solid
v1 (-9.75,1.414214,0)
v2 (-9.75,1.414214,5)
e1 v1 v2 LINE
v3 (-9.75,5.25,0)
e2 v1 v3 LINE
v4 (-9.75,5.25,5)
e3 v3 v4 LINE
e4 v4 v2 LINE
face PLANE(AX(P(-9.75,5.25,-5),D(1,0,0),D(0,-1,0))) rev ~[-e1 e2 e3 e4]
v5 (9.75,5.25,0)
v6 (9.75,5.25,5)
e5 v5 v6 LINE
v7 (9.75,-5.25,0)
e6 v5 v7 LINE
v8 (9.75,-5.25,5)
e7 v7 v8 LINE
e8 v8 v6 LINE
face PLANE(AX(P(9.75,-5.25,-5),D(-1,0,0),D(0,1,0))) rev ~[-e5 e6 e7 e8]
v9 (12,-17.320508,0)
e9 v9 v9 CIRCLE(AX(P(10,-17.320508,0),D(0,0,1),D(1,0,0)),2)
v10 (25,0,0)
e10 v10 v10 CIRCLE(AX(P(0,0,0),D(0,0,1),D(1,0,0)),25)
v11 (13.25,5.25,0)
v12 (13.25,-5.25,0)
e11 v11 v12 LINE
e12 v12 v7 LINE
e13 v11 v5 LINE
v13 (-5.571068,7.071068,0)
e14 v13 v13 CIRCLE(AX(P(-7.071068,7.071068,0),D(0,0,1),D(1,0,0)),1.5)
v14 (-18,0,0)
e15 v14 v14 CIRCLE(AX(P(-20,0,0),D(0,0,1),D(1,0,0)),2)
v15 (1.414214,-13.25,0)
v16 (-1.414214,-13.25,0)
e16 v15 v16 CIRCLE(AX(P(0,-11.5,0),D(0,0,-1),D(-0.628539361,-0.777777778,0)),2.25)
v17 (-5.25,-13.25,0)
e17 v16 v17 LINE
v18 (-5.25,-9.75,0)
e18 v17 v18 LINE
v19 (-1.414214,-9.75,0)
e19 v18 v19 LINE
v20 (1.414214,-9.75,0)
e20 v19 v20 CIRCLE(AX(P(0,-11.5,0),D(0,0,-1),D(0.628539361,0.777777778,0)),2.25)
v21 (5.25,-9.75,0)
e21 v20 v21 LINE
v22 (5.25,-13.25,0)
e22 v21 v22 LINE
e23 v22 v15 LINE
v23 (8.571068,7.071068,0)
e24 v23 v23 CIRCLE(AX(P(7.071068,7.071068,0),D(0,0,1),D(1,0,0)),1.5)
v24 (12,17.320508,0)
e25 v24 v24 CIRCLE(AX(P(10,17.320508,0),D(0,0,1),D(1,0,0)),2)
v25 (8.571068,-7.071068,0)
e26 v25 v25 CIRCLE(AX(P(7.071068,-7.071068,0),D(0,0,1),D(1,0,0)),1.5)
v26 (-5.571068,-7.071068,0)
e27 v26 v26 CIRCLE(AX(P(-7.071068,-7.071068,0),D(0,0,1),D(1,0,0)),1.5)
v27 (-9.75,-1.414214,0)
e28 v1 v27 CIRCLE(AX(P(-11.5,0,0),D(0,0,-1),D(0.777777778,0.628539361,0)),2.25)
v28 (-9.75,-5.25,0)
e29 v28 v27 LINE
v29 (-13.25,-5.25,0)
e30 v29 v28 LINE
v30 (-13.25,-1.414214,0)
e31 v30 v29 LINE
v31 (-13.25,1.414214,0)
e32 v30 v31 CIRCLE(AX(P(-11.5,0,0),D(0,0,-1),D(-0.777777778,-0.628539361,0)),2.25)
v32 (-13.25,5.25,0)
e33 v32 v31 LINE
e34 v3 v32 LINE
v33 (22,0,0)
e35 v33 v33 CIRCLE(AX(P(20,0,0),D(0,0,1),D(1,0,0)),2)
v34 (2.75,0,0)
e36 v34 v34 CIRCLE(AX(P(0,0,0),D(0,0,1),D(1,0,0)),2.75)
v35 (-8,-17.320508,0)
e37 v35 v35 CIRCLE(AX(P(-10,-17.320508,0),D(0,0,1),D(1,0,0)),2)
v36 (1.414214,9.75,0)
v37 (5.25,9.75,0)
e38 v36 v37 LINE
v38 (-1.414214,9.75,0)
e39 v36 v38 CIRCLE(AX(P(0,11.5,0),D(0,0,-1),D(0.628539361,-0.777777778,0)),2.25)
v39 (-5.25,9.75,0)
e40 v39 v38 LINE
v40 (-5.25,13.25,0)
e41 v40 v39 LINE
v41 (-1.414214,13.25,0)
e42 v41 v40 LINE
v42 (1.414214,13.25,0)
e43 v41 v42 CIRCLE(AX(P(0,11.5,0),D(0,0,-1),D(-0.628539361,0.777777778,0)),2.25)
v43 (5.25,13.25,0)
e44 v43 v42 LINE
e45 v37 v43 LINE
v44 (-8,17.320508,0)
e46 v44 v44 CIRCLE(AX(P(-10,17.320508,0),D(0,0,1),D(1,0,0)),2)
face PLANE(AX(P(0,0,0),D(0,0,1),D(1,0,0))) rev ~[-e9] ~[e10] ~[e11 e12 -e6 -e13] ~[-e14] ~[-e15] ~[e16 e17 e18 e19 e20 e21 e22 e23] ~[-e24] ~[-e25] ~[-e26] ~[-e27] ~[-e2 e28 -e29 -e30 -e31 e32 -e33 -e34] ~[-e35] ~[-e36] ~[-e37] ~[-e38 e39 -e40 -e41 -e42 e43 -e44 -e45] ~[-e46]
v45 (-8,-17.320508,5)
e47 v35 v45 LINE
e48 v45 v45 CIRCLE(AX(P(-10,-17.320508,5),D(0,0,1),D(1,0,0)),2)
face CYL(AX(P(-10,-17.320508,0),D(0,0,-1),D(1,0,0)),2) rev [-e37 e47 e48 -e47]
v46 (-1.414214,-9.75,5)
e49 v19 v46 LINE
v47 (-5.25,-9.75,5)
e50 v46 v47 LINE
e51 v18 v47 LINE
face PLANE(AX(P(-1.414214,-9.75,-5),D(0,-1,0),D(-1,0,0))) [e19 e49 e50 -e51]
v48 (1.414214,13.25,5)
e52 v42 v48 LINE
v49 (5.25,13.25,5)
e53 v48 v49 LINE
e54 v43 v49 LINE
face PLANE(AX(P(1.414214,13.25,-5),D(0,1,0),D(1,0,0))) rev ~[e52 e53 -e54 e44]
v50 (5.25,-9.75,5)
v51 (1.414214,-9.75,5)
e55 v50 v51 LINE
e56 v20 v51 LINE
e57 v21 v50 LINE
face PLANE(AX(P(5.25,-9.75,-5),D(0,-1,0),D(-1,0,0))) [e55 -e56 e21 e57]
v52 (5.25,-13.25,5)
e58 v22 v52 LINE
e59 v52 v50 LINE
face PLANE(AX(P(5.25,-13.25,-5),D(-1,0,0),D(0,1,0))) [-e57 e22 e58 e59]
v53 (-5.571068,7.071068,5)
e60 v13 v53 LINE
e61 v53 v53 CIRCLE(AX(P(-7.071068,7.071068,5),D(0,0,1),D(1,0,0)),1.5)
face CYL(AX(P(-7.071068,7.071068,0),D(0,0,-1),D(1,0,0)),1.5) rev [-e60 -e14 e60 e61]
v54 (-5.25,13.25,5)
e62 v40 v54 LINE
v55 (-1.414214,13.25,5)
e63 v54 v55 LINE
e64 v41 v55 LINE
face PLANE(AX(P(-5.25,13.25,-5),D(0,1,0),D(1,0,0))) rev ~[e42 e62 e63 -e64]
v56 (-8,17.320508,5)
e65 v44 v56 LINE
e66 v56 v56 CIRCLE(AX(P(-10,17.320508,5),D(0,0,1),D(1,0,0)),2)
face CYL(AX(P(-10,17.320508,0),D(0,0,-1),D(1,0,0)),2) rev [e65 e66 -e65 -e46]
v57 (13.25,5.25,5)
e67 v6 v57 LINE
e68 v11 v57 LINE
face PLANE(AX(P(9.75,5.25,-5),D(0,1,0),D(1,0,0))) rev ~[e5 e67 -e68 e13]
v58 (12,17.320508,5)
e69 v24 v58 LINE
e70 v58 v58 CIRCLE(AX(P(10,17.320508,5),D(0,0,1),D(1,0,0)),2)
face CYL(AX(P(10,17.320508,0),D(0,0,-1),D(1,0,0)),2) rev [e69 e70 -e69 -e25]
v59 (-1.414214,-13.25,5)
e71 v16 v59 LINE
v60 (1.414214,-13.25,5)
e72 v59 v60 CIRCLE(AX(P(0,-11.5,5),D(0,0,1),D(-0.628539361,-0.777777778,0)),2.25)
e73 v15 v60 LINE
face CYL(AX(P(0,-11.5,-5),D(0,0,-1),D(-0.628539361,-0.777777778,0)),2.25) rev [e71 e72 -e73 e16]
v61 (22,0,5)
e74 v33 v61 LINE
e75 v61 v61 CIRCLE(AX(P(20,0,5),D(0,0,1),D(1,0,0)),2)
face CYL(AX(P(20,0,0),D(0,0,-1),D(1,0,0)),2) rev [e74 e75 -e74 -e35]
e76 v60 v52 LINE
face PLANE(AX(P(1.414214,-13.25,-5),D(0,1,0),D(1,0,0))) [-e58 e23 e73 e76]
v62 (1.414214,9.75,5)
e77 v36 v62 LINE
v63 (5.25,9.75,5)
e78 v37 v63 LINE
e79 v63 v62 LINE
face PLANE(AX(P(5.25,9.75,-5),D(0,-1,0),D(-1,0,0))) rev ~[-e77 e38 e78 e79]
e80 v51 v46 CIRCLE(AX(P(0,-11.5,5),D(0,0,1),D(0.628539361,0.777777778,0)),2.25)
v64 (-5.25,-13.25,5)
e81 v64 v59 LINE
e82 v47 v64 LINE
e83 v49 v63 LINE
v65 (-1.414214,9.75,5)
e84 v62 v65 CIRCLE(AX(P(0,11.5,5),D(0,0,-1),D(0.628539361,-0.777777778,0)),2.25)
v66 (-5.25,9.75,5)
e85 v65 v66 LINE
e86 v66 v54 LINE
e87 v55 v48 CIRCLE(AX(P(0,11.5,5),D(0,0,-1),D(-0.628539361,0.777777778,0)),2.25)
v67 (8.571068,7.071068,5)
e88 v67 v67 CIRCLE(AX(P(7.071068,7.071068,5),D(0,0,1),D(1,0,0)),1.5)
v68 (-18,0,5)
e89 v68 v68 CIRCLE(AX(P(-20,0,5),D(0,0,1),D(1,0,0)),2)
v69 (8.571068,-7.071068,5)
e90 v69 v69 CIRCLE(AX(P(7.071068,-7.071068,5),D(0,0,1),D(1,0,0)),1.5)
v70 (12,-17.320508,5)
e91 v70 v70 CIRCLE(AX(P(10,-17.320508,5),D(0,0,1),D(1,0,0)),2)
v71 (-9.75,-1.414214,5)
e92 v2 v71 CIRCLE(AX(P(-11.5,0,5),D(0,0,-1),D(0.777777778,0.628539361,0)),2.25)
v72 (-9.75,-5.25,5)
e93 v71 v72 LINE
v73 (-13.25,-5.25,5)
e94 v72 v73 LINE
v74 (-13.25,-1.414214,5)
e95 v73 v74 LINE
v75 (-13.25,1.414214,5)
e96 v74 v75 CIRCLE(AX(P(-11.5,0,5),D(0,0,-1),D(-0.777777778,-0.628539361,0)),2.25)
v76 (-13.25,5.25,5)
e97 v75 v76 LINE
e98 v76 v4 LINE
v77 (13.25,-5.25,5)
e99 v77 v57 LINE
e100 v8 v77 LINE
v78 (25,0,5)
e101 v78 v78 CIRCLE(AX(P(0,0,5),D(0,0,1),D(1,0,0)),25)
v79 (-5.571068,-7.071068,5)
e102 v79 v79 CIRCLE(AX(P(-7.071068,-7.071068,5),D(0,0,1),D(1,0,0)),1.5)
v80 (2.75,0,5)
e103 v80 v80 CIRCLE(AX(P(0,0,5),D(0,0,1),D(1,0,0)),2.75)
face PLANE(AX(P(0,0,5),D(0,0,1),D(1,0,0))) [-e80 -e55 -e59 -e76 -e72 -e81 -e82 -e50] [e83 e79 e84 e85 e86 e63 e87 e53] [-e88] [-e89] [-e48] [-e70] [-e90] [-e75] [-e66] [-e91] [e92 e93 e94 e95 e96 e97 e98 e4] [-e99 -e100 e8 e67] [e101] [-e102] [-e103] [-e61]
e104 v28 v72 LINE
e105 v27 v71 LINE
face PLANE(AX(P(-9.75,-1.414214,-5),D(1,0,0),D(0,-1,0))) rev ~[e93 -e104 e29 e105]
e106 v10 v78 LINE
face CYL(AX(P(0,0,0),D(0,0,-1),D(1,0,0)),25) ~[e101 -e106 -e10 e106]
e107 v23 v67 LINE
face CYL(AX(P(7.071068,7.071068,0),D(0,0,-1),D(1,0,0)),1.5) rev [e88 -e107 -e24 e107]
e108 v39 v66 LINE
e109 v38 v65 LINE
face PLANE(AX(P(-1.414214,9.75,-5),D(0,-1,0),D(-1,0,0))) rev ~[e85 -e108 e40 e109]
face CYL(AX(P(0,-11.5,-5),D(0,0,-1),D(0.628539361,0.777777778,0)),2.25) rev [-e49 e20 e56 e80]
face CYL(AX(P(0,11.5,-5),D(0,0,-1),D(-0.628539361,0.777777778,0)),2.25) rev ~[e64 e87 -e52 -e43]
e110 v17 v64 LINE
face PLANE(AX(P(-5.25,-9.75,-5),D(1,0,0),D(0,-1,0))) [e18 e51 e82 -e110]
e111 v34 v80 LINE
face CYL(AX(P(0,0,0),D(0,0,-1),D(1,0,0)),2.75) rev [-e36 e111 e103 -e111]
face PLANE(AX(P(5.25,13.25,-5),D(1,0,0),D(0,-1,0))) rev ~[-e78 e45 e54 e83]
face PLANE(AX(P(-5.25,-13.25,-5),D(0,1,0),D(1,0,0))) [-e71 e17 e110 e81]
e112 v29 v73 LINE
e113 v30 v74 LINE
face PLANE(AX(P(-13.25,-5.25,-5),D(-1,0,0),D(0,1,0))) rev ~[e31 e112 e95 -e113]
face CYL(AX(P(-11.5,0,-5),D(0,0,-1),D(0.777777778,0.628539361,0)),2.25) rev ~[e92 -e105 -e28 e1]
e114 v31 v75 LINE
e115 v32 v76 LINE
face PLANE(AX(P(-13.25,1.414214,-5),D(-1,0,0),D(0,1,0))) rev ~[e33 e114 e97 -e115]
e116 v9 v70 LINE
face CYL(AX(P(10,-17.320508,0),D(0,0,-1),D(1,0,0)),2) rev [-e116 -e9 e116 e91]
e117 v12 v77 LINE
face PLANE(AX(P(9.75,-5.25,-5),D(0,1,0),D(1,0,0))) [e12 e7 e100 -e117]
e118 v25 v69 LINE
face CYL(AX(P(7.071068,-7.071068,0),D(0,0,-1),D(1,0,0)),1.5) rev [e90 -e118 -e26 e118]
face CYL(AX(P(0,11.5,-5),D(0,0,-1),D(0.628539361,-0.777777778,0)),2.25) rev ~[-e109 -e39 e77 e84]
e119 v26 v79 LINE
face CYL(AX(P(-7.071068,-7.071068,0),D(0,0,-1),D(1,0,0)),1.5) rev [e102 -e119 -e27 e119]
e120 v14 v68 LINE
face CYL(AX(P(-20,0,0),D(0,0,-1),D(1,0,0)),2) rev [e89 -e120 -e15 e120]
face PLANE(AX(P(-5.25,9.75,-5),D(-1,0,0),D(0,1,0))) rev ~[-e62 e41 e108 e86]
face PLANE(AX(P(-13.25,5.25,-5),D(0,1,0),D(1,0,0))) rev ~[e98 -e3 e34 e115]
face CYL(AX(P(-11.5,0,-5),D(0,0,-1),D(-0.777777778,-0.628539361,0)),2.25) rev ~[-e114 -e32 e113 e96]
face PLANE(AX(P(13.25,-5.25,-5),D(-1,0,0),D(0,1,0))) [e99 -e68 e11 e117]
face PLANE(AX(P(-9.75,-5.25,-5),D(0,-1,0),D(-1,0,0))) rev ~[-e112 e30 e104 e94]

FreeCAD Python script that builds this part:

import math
import FreeCAD as App
import Part
import Sketcher
from FreeCAD import Vector

doc = App.newDocument("Part")
body = doc.addObject("PartDesign::Body", "Body")

sketch1 = body.newObject("Sketcher::SketchObject", "Sketch")
sketch1.AttachmentSupport = (doc.getObject("XY_Plane"), [""])
sketch1.MapMode = "FlatFace"
sketch1.addGeometry(Part.Circle(Vector(0, 0, 0), Vector(0, 0, 1), 25), False)
sketch1.addGeometry(Part.Circle(Vector(-10, -17.320508, 0), Vector(0, 0, 1), 2), False)
sketch1.addGeometry(Part.ArcOfCircle(Part.Circle(Vector(-11.5, 0, 0), Vector(0, 0, 1), 2), math.radians(-41.409622), math.radians(41.409622)), False)
sketch1.addGeometry(Part.LineSegment(Vector(-10, -1.322876, 0), Vector(-10, -5, 0)), False)
sketch1.addGeometry(Part.LineSegment(Vector(-10, -5, 0), Vector(-13, -5, 0)), False)
sketch1.addGeometry(Part.LineSegment(Vector(-13, -5, 0), Vector(-13, -1.322876, 0)), False)
sketch1.addGeometry(Part.ArcOfCircle(Part.Circle(Vector(-11.5, 0, 0), Vector(0, 0, 1), 2), math.radians(138.590378), math.radians(221.409622)), False)
sketch1.addGeometry(Part.LineSegment(Vector(-13, 1.322876, 0), Vector(-13, 5, 0)), False)
sketch1.addGeometry(Part.LineSegment(Vector(-13, 5, 0), Vector(-10, 5, 0)), False)
sketch1.addGeometry(Part.LineSegment(Vector(-10, 5, 0), Vector(-10, 1.322876, 0)), False)
sketch1.addGeometry(Part.Circle(Vector(-7.071068, -7.071068, 0), Vector(0, 0, 1), 1.5), False)
sketch1.addGeometry(Part.Circle(Vector(10, -17.320508, 0), Vector(0, 0, 1), 2), False)
sketch1.addGeometry(Part.ArcOfCircle(Part.Circle(Vector(0, -11.5, 0), Vector(0, 0, 1), 2), math.radians(48.590378), math.radians(131.409622)), False)
sketch1.addGeometry(Part.LineSegment(Vector(1.322876, -10, 0), Vector(5, -10, 0)), False)
sketch1.addGeometry(Part.LineSegment(Vector(5, -10, 0), Vector(5, -13, 0)), False)
sketch1.addGeometry(Part.LineSegment(Vector(5, -13, 0), Vector(1.322876, -13, 0)), False)
sketch1.addGeometry(Part.ArcOfCircle(Part.Circle(Vector(0, -11.5, 0), Vector(0, 0, 1), 2), math.radians(-131.409622), math.radians(-48.590378)), False)
sketch1.addGeometry(Part.LineSegment(Vector(-1.322876, -13, 0), Vector(-5, -13, 0)), False)
sketch1.addGeometry(Part.LineSegment(Vector(-5, -13, 0), Vector(-5, -10, 0)), False)
sketch1.addGeometry(Part.LineSegment(Vector(-5, -10, 0), Vector(-1.322876, -10, 0)), False)
sketch1.addGeometry(Part.Circle(Vector(7.071068, -7.071068, 0), Vector(0, 0, 1), 1.5), False)
sketch1.addGeometry(Part.Circle(Vector(0, 0, 0), Vector(0, 0, 1), 2.75), False)
sketch1.addGeometry(Part.LineSegment(Vector(13, -5, 0), Vector(10, -5, 0)), False)
sketch1.addGeometry(Part.LineSegment(Vector(10, -5, 0), Vector(10, 5, 0)), False)
sketch1.addGeometry(Part.LineSegment(Vector(10, 5, 0), Vector(13, 5, 0)), False)
sketch1.addGeometry(Part.LineSegment(Vector(13, 5, 0), Vector(13, -5, 0)), False)
sketch1.addGeometry(Part.Circle(Vector(-20, 0, 0), Vector(0, 0, 1), 2), False)
sketch1.addGeometry(Part.Circle(Vector(-7.071068, 7.071068, 0), Vector(0, 0, 1), 1.5), False)
sketch1.addGeometry(Part.Circle(Vector(-10, 17.320508, 0), Vector(0, 0, 1), 2), False)
sketch1.addGeometry(Part.Circle(Vector(7.071068, 7.071068, 0), Vector(0, 0, 1), 1.5), False)
sketch1.addGeometry(Part.Circle(Vector(20, 0, 0), Vector(0, 0, 1), 2), False)
sketch1.addGeometry(Part.ArcOfCircle(Part.Circle(Vector(0, 11.5, 0), Vector(0, 0, 1), 2), math.radians(-131.409622), math.radians(-48.590378)), False)
sketch1.addGeometry(Part.LineSegment(Vector(-1.322876, 10, 0), Vector(-5, 10, 0)), False)
sketch1.addGeometry(Part.LineSegment(Vector(-5, 10, 0), Vector(-5, 13, 0)), False)
sketch1.addGeometry(Part.LineSegment(Vector(-5, 13, 0), Vector(-1.322876, 13, 0)), False)
sketch1.addGeometry(Part.ArcOfCircle(Part.Circle(Vector(0, 11.5, 0), Vector(0, 0, 1), 2), math.radians(48.590378), math.radians(131.409622)), False)
sketch1.addGeometry(Part.LineSegment(Vector(1.322876, 13, 0), Vector(5, 13, 0)), False)
sketch1.addGeometry(Part.LineSegment(Vector(5, 13, 0), Vector(5, 10, 0)), False)
sketch1.addGeometry(Part.LineSegment(Vector(5, 10, 0), Vector(1.322876, 10, 0)), False)
sketch1.addGeometry(Part.Circle(Vector(10, 17.320508, 0), Vector(0, 0, 1), 2), False)
sketch1.addConstraint(Sketcher.Constraint("Coincident", 2, 1, 3, 1))
sketch1.addConstraint(Sketcher.Constraint("Coincident", 3, 2, 4, 1))
sketch1.addConstraint(Sketcher.Constraint("Coincident", 4, 2, 5, 1))
sketch1.addConstraint(Sketcher.Constraint("Coincident", 5, 2, 6, 2))
sketch1.addConstraint(Sketcher.Constraint("Coincident", 6, 1, 7, 1))
sketch1.addConstraint(Sketcher.Constraint("Coincident", 7, 2, 8, 1))
sketch1.addConstraint(Sketcher.Constraint("Coincident", 8, 2, 9, 1))
sketch1.addConstraint(Sketcher.Constraint("Coincident", 9, 2, 2, 2))
sketch1.addConstraint(Sketcher.Constraint("Coincident", 12, 1, 13, 1))
sketch1.addConstraint(Sketcher.Constraint("Coincident", 13, 2, 14, 1))
sketch1.addConstraint(Sketcher.Constraint("Coincident", 14, 2, 15, 1))
sketch1.addConstraint(Sketcher.Constraint("Coincident", 15, 2, 16, 2))
sketch1.addConstraint(Sketcher.Constraint("Coincident", 16, 1, 17, 1))
sketch1.addConstraint(Sketcher.Constraint("Coincident", 17, 2, 18, 1))
sketch1.addConstraint(Sketcher.Constraint("Coincident", 18, 2, 19, 1))
sketch1.addConstraint(Sketcher.Constraint("Coincident", 19, 2, 12, 2))
sketch1.addConstraint(Sketcher.Constraint("Coincident", 22, 2, 23, 1))
sketch1.addConstraint(Sketcher.Constraint("Coincident", 23, 2, 24, 1))
sketch1.addConstraint(Sketcher.Constraint("Coincident", 24, 2, 25, 1))
sketch1.addConstraint(Sketcher.Constraint("Coincident", 25, 2, 22, 1))
sketch1.addConstraint(Sketcher.Constraint("Coincident", 31, 1, 32, 1))
sketch1.addConstraint(Sketcher.Constraint("Coincident", 32, 2, 33, 1))
sketch1.addConstraint(Sketcher.Constraint("Coincident", 33, 2, 34, 1))
sketch1.addConstraint(Sketcher.Constraint("Coincident", 34, 2, 35, 2))
sketch1.addConstraint(Sketcher.Constraint("Coincident", 35, 1, 36, 1))
sketch1.addConstraint(Sketcher.Constraint("Coincident", 36, 2, 37, 1))
sketch1.addConstraint(Sketcher.Constraint("Coincident", 37, 2, 38, 1))
sketch1.addConstraint(Sketcher.Constraint("Coincident", 38, 2, 31, 2))
sketch1.addConstraint(Sketcher.Constraint("Vertical", 3))
sketch1.addConstraint(Sketcher.Constraint("Horizontal", 4))
sketch1.addConstraint(Sketcher.Constraint("Vertical", 5))
sketch1.addConstraint(Sketcher.Constraint("Vertical", 7))
sketch1.addConstraint(Sketcher.Constraint("Horizontal", 8))
sketch1.addConstraint(Sketcher.Constraint("Vertical", 9))
sketch1.addConstraint(Sketcher.Constraint("Horizontal", 13))
sketch1.addConstraint(Sketcher.Constraint("Vertical", 14))
sketch1.addConstraint(Sketcher.Constraint("Horizontal", 15))
sketch1.addConstraint(Sketcher.Constraint("Horizontal", 17))
sketch1.addConstraint(Sketcher.Constraint("Vertical", 18))
sketch1.addConstraint(Sketcher.Constraint("Horizontal", 19))
sketch1.addConstraint(Sketcher.Constraint("Horizontal", 22))
sketch1.addConstraint(Sketcher.Constraint("Vertical", 23))
sketch1.addConstraint(Sketcher.Constraint("Horizontal", 24))
sketch1.addConstraint(Sketcher.Constraint("Vertical", 25))
sketch1.addConstraint(Sketcher.Constraint("Horizontal", 32))
sketch1.addConstraint(Sketcher.Constraint("Vertical", 33))
sketch1.addConstraint(Sketcher.Constraint("Horizontal", 34))
sketch1.addConstraint(Sketcher.Constraint("Horizontal", 36))
sketch1.addConstraint(Sketcher.Constraint("Vertical", 37))
sketch1.addConstraint(Sketcher.Constraint("Horizontal", 38))
sketch1.addConstraint(Sketcher.Constraint("Coincident", 0, 3, -1, 1))
sketch1.addConstraint(Sketcher.Constraint("Coincident", 21, 3, -1, 1))
sketch1.addConstraint(Sketcher.Constraint("Coincident", 6, 3, 2, 3))
sketch1.addConstraint(Sketcher.Constraint("Coincident", 16, 3, 12, 3))
sketch1.addConstraint(Sketcher.Constraint("Coincident", 35, 3, 31, 3))
sketch1.addConstraint(Sketcher.Constraint("Equal", 1, 2))
sketch1.addConstraint(Sketcher.Constraint("Equal", 2, 6))
sketch1.addConstraint(Sketcher.Constraint("Equal", 6, 11))
sketch1.addConstraint(Sketcher.Constraint("Equal", 11, 12))
sketch1.addConstraint(Sketcher.Constraint("Equal", 12, 16))
sketch1.addConstraint(Sketcher.Constraint("Equal", 10, 20))
sketch1.addConstraint(Sketcher.Constraint("Equal", 16, 26))
sketch1.addConstraint(Sketcher.Constraint("Equal", 20, 27))
sketch1.addConstraint(Sketcher.Constraint("Equal", 26, 28))
sketch1.addConstraint(Sketcher.Constraint("Equal", 27, 29))
sketch1.addConstraint(Sketcher.Constraint("Equal", 28, 30))
sketch1.addConstraint(Sketcher.Constraint("Equal", 30, 31))
sketch1.addConstraint(Sketcher.Constraint("Equal", 31, 35))
sketch1.addConstraint(Sketcher.Constraint("Equal", 35, 39))
sketch1.addConstraint(Sketcher.Constraint("Symmetric", 20, 3, 27, 3, -1, 1))
sketch1.addConstraint(Sketcher.Constraint("Symmetric", 11, 3, 28, 3, -1, 1))
sketch1.addConstraint(Sketcher.Constraint("Symmetric", 10, 3, 29, 3, -1, 1))
sketch1.addConstraint(Sketcher.Constraint("Symmetric", 26, 3, 30, 3, -1, 1))
sketch1.addConstraint(Sketcher.Constraint("Symmetric", 12, 3, 31, 3, -1, 1))
sketch1.addConstraint(Sketcher.Constraint("Symmetric", 1, 3, 39, 3, -1, 1))
sketch1.addConstraint(Sketcher.Constraint("Symmetric", 8, 2, 22, 2, -1, 1))
sketch1.addConstraint(Sketcher.Constraint("Symmetric", 3, 2, 23, 2, -1, 1))
sketch1.addConstraint(Sketcher.Constraint("Symmetric", 13, 2, 32, 2, -1, 1))
sketch1.addConstraint(Sketcher.Constraint("Symmetric", 17, 2, 36, 2, -1, 1))
sketch1.addConstraint(Sketcher.Constraint("Symmetric", 1, 3, 11, 3, -2))
sketch1.addConstraint(Sketcher.Constraint("Symmetric", 10, 3, 20, 3, -2))
sketch1.addConstraint(Sketcher.Constraint("Symmetric", 15, 2, 16, 1, -2))
sketch1.addConstraint(Sketcher.Constraint("Symmetric", 13, 2, 18, 2, -2))
sketch1.addConstraint(Sketcher.Constraint("Symmetric", 7, 2, 24, 2, -2))
sketch1.addConstraint(Sketcher.Constraint("Symmetric", 5, 2, 6, 1, -1))
sketch1.addConstraint(Sketcher.Constraint("PointOnObject", 26, 3, -1))
sketch1.addConstraint(Sketcher.Constraint("Horizontal", 2, 1, 5, 2))
sketch1.addConstraint(Sketcher.Constraint("Horizontal", 34, 2, 35, 1))
sketch1.addConstraint(Sketcher.Constraint("Horizontal", 32, 2, 37, 2))
sketch1.addConstraint(Sketcher.Constraint("Vertical", 28, 3, 2, 1))
sketch1.addConstraint(Sketcher.Constraint("Vertical", 12, 1, 15, 2))
sketch1.addConstraint(Sketcher.Constraint("Equal", 38, 3))
sketch1.addConstraint(Sketcher.Constraint("Equal", 24, 14))
sketch1.addConstraint(Sketcher.Constraint("Diameter", 0, 50.0))
sketch1.addConstraint(Sketcher.Constraint("Diameter", 1, 4.0))
sketch1.addConstraint(Sketcher.Constraint("Diameter", 10, 3.0))
sketch1.addConstraint(Sketcher.Constraint("Diameter", 21, 5.5))
sketch1.addConstraint(Sketcher.Constraint("DistanceX", 4, 2, 4, 1, 3.0))
sketch1.addConstraint(Sketcher.Constraint("DistanceY", 23, 1, 23, 2, 10.0))
sketch1.addConstraint(Sketcher.Constraint("DistanceX", 1, 3, -1, 1, 10.0))
sketch1.addConstraint(Sketcher.Constraint("DistanceX", 26, 3, -1, 1, 20.0))
sketch1.addConstraint(Sketcher.Constraint("DistanceY", 12, 1, -1, 1, 10.0))
sketch1.addConstraint(Sketcher.Constraint("DistanceY", 1, 3, -1, 1, 17.320508))
sketch1.addConstraint(Sketcher.Constraint("DistanceY", 1, 3, 10, 3, 10.24944))
sketch1.addConstraint(Sketcher.Constraint("DistanceX", 10, 3, -1, 1, 7.071068))
pad1 = body.newObject("PartDesign::Pad", "Pad")
pad1.Profile = sketch1
pad1.Length = 5

sketch2 = body.newObject("Sketcher::SketchObject", "Sketch001")
sketch2.AttachmentSupport = (doc.getObject("XY_Plane"), [""])
sketch2.MapMode = "FlatFace"
sketch2.AttachmentOffset = App.Placement(Vector(0, 0, -5), App.Rotation())
sketch2.addGeometry(Part.LineSegment(Vector(-5.25, 13.25, 0), Vector(-5.25, 9.75, 0)), False)
sketch2.addGeometry(Part.LineSegment(Vector(-5.25, 9.75, 0), Vector(-1.414214, 9.75, 0)), False)
sketch2.addGeometry(Part.ArcOfCircle(Part.Circle(Vector(0, 11.5, 0), Vector(0, 0, 1), 2.25), math.radians(-128.942441), math.radians(-51.057559)), False)
sketch2.addGeometry(Part.LineSegment(Vector(1.414214, 9.75, 0), Vector(5.25, 9.75, 0)), False)
sketch2.addGeometry(Part.LineSegment(Vector(5.25, 9.75, 0), Vector(5.25, 13.25, 0)), False)
sketch2.addGeometry(Part.LineSegment(Vector(5.25, 13.25, 0), Vector(1.414214, 13.25, 0)), False)
sketch2.addGeometry(Part.ArcOfCircle(Part.Circle(Vector(0, 11.5, 0), Vector(0, 0, 1), 2.25), math.radians(51.057559), math.radians(128.942441)), False)
sketch2.addGeometry(Part.LineSegment(Vector(-1.414214, 13.25, 0), Vector(-5.25, 13.25, 0)), False)
sketch2.addGeometry(Part.LineSegment(Vector(-5, 10, 0), Vector(-5, 13, 0)), False)
sketch2.addGeometry(Part.LineSegment(Vector(-5, 13, 0), Vector(-1.322876, 13, 0)), False)
sketch2.addGeometry(Part.ArcOfCircle(Part.Circle(Vector(0, 11.5, 0), Vector(0, 0, 1), 2), math.radians(48.590378), math.radians(131.409622)), False)
sketch2.addGeometry(Part.LineSegment(Vector(1.322876, 13, 0), Vector(5, 13, 0)), False)
sketch2.addGeometry(Part.LineSegment(Vector(5, 13, 0), Vector(5, 10, 0)), False)
sketch2.addGeometry(Part.LineSegment(Vector(5, 10, 0), Vector(1.322876, 10, 0)), False)
sketch2.addGeometry(Part.ArcOfCircle(Part.Circle(Vector(0, 11.5, 0), Vector(0, 0, 1), 2), math.radians(-131.409622), math.radians(-48.590378)), False)
sketch2.addGeometry(Part.LineSegment(Vector(-1.322876, 10, 0), Vector(-5, 10, 0)), False)
sketch2.addGeometry(Part.LineSegment(Vector(-13.25, -1.414214, 0), Vector(-13.25, -5.25, 0)), False)
sketch2.addGeometry(Part.LineSegment(Vector(-13.25, -5.25, 0), Vector(-9.75, -5.25, 0)), False)
sketch2.addGeometry(Part.LineSegment(Vector(-9.75, -5.25, 0), Vector(-9.75, -1.414214, 0)), False)
sketch2.addGeometry(Part.ArcOfCircle(Part.Circle(Vector(-11.5, 0, 0), Vector(0, 0, 1), 2.25), math.radians(-38.942441), math.radians(38.942441)), False)
sketch2.addGeometry(Part.LineSegment(Vector(-9.75, 1.414214, 0), Vector(-9.75, 5.25, 0)), False)
sketch2.addGeometry(Part.LineSegment(Vector(-9.75, 5.25, 0), Vector(-13.25, 5.25, 0)), False)
sketch2.addGeometry(Part.LineSegment(Vector(-13.25, 5.25, 0), Vector(-13.25, 1.414214, 0)), False)
sketch2.addGeometry(Part.ArcOfCircle(Part.Circle(Vector(-11.5, 0, 0), Vector(0, 0, 1), 2.25), math.radians(141.057559), math.radians(218.942441)), False)
sketch2.addGeometry(Part.LineSegment(Vector(-13, -5, 0), Vector(-13, -1.322876, 0)), False)
sketch2.addGeometry(Part.ArcOfCircle(Part.Circle(Vector(-11.5, 0, 0), Vector(0, 0, 1), 2), math.radians(138.590378), math.radians(221.409622)), False)
sketch2.addGeometry(Part.LineSegment(Vector(-13, 1.322876, 0), Vector(-13, 5, 0)), False)
sketch2.addGeometry(Part.LineSegment(Vector(-13, 5, 0), Vector(-10, 5, 0)), False)
sketch2.addGeometry(Part.LineSegment(Vector(-10, 5, 0), Vector(-10, 1.322876, 0)), False)
sketch2.addGeometry(Part.ArcOfCircle(Part.Circle(Vector(-11.5, 0, 0), Vector(0, 0, 1), 2), math.radians(-41.409622), math.radians(41.409622)), False)
sketch2.addGeometry(Part.LineSegment(Vector(-10, -1.322876, 0), Vector(-10, -5, 0)), False)
sketch2.addGeometry(Part.LineSegment(Vector(-10, -5, 0), Vector(-13, -5, 0)), False)
sketch2.addGeometry(Part.LineSegment(Vector(5.25, -9.75, 0), Vector(1.414214, -9.75, 0)), False)
sketch2.addGeometry(Part.ArcOfCircle(Part.Circle(Vector(0, -11.5, 0), Vector(0, 0, 1), 2.25), math.radians(51.057559), math.radians(128.942441)), False)
sketch2.addGeometry(Part.LineSegment(Vector(-1.414214, -9.75, 0), Vector(-5.25, -9.75, 0)), False)
sketch2.addGeometry(Part.LineSegment(Vector(-5.25, -9.75, 0), Vector(-5.25, -13.25, 0)), False)
sketch2.addGeometry(Part.LineSegment(Vector(-5.25, -13.25, 0), Vector(-1.414214, -13.25, 0)), False)
sketch2.addGeometry(Part.ArcOfCircle(Part.Circle(Vector(0, -11.5, 0), Vector(0, 0, 1), 2.25), math.radians(-128.942441), math.radians(-51.057559)), False)
sketch2.addGeometry(Part.LineSegment(Vector(1.414214, -13.25, 0), Vector(5.25, -13.25, 0)), False)
sketch2.addGeometry(Part.LineSegment(Vector(5.25, -13.25, 0), Vector(5.25, -9.75, 0)), False)
sketch2.addGeometry(Part.LineSegment(Vector(1.322876, -10, 0), Vector(5, -10, 0)), False)
sketch2.addGeometry(Part.LineSegment(Vector(5, -10, 0), Vector(5, -13, 0)), False)
sketch2.addGeometry(Part.LineSegment(Vector(5, -13, 0), Vector(1.322876, -13, 0)), False)
sketch2.addGeometry(Part.ArcOfCircle(Part.Circle(Vector(0, -11.5, 0), Vector(0, 0, 1), 2), math.radians(-131.409622), math.radians(-48.590378)), False)
sketch2.addGeometry(Part.LineSegment(Vector(-1.322876, -13, 0), Vector(-5, -13, 0)), False)
sketch2.addGeometry(Part.LineSegment(Vector(-5, -13, 0), Vector(-5, -10, 0)), False)
sketch2.addGeometry(Part.LineSegment(Vector(-5, -10, 0), Vector(-1.322876, -10, 0)), False)
sketch2.addGeometry(Part.ArcOfCircle(Part.Circle(Vector(0, -11.5, 0), Vector(0, 0, 1), 2), math.radians(48.590378), math.radians(131.409622)), False)
sketch2.addGeometry(Part.LineSegment(Vector(9.75, 5.25, 0), Vector(9.75, -5.25, 0)), False)
sketch2.addGeometry(Part.LineSegment(Vector(9.75, -5.25, 0), Vector(13.25, -5.25, 0)), False)
sketch2.addGeometry(Part.LineSegment(Vector(13.25, -5.25, 0), Vector(13.25, 5.25, 0)), False)
sketch2.addGeometry(Part.LineSegment(Vector(13.25, 5.25, 0), Vector(9.75, 5.25, 0)), False)
sketch2.addGeometry(Part.LineSegment(Vector(13, -5, 0), Vector(10, -5, 0)), False)
sketch2.addGeometry(Part.LineSegment(Vector(10, -5, 0), Vector(10, 5, 0)), False)
sketch2.addGeometry(Part.LineSegment(Vector(10, 5, 0), Vector(13, 5, 0)), False)
sketch2.addGeometry(Part.LineSegment(Vector(13, 5, 0), Vector(13, -5, 0)), False)
sketch2.addConstraint(Sketcher.Constraint("Coincident", 0, 2, 1, 1))
sketch2.addConstraint(Sketcher.Constraint("Coincident", 1, 2, 2, 1))
sketch2.addConstraint(Sketcher.Constraint("Coincident", 2, 2, 3, 1))
sketch2.addConstraint(Sketcher.Constraint("Coincident", 3, 2, 4, 1))
sketch2.addConstraint(Sketcher.Constraint("Coincident", 4, 2, 5, 1))
sketch2.addConstraint(Sketcher.Constraint("Coincident", 5, 2, 6, 1))
sketch2.addConstraint(Sketcher.Constraint("Coincident", 6, 2, 7, 1))
sketch2.addConstraint(Sketcher.Constraint("Coincident", 7, 2, 0, 1))
sketch2.addConstraint(Sketcher.Constraint("Coincident", 8, 2, 9, 1))
sketch2.addConstraint(Sketcher.Constraint("Coincident", 9, 2, 10, 2))
sketch2.addConstraint(Sketcher.Constraint("Coincident", 10, 1, 11, 1))
sketch2.addConstraint(Sketcher.Constraint("Coincident", 11, 2, 12, 1))
sketch2.addConstraint(Sketcher.Constraint("Coincident", 12, 2, 13, 1))
sketch2.addConstraint(Sketcher.Constraint("Coincident", 13, 2, 14, 2))
sketch2.addConstraint(Sketcher.Constraint("Coincident", 14, 1, 15, 1))
sketch2.addConstraint(Sketcher.Constraint("Coincident", 15, 2, 8, 1))
sketch2.addConstraint(Sketcher.Constraint("Coincident", 16, 2, 17, 1))
sketch2.addConstraint(Sketcher.Constraint("Coincident", 17, 2, 18, 1))
sketch2.addConstraint(Sketcher.Constraint("Coincident", 18, 2, 19, 1))
sketch2.addConstraint(Sketcher.Constraint("Coincident", 19, 2, 20, 1))
sketch2.addConstraint(Sketcher.Constraint("Coincident", 20, 2, 21, 1))
sketch2.addConstraint(Sketcher.Constraint("Coincident", 21, 2, 22, 1))
sketch2.addConstraint(Sketcher.Constraint("Coincident", 22, 2, 23, 1))
sketch2.addConstraint(Sketcher.Constraint("Coincident", 23, 2, 16, 1))
sketch2.addConstraint(Sketcher.Constraint("Coincident", 24, 2, 25, 2))
sketch2.addConstraint(Sketcher.Constraint("Coincident", 25, 1, 26, 1))
sketch2.addConstraint(Sketcher.Constraint("Coincident", 26, 2, 27, 1))
sketch2.addConstraint(Sketcher.Constraint("Coincident", 27, 2, 28, 1))
sketch2.addConstraint(Sketcher.Constraint("Coincident", 28, 2, 29, 2))
sketch2.addConstraint(Sketcher.Constraint("Coincident", 29, 1, 30, 1))
sketch2.addConstraint(Sketcher.Constraint("Coincident", 30, 2, 31, 1))
sketch2.addConstraint(Sketcher.Constraint("Coincident", 31, 2, 24, 1))
sketch2.addConstraint(Sketcher.Constraint("Coincident", 32, 2, 33, 1))
sketch2.addConstraint(Sketcher.Constraint("Coincident", 33, 2, 34, 1))
sketch2.addConstraint(Sketcher.Constraint("Coincident", 34, 2, 35, 1))
sketch2.addConstraint(Sketcher.Constraint("Coincident", 35, 2, 36, 1))
sketch2.addConstraint(Sketcher.Constraint("Coincident", 36, 2, 37, 1))
sketch2.addConstraint(Sketcher.Constraint("Coincident", 37, 2, 38, 1))
sketch2.addConstraint(Sketcher.Constraint("Coincident", 38, 2, 39, 1))
sketch2.addConstraint(Sketcher.Constraint("Coincident", 39, 2, 32, 1))
sketch2.addConstraint(Sketcher.Constraint("Coincident", 40, 2, 41, 1))
sketch2.addConstraint(Sketcher.Constraint("Coincident", 41, 2, 42, 1))
sketch2.addConstraint(Sketcher.Constraint("Coincident", 42, 2, 43, 2))
sketch2.addConstraint(Sketcher.Constraint("Coincident", 43, 1, 44, 1))
sketch2.addConstraint(Sketcher.Constraint("Coincident", 44, 2, 45, 1))
sketch2.addConstraint(Sketcher.Constraint("Coincident", 45, 2, 46, 1))
sketch2.addConstraint(Sketcher.Constraint("Coincident", 46, 2, 47, 2))
sketch2.addConstraint(Sketcher.Constraint("Coincident", 47, 1, 40, 1))
sketch2.addConstraint(Sketcher.Constraint("Coincident", 48, 2, 49, 1))
sketch2.addConstraint(Sketcher.Constraint("Coincident", 49, 2, 50, 1))
sketch2.addConstraint(Sketcher.Constraint("Coincident", 50, 2, 51, 1))
sketch2.addConstraint(Sketcher.Constraint("Coincident", 51, 2, 48, 1))
sketch2.addConstraint(Sketcher.Constraint("Coincident", 52, 2, 53, 1))
sketch2.addConstraint(Sketcher.Constraint("Coincident", 53, 2, 54, 1))
sketch2.addConstraint(Sketcher.Constraint("Coincident", 54, 2, 55, 1))
sketch2.addConstraint(Sketcher.Constraint("Coincident", 55, 2, 52, 1))
sketch2.addConstraint(Sketcher.Constraint("Vertical", 0))
sketch2.addConstraint(Sketcher.Constraint("Horizontal", 1))
sketch2.addConstraint(Sketcher.Constraint("Horizontal", 3))
sketch2.addConstraint(Sketcher.Constraint("Vertical", 4))
sketch2.addConstraint(Sketcher.Constraint("Horizontal", 5))
sketch2.addConstraint(Sketcher.Constraint("Horizontal", 7))
sketch2.addConstraint(Sketcher.Constraint("Vertical", 8))
sketch2.addConstraint(Sketcher.Constraint("Horizontal", 9))
sketch2.addConstraint(Sketcher.Constraint("Horizontal", 11))
sketch2.addConstraint(Sketcher.Constraint("Vertical", 12))
sketch2.addConstraint(Sketcher.Constraint("Horizontal", 13))
sketch2.addConstraint(Sketcher.Constraint("Horizontal", 15))
sketch2.addConstraint(Sketcher.Constraint("Vertical", 16))
sketch2.addConstraint(Sketcher.Constraint("Horizontal", 17))
sketch2.addConstraint(Sketcher.Constraint("Vertical", 18))
sketch2.addConstraint(Sketcher.Constraint("Vertical", 20))
sketch2.addConstraint(Sketcher.Constraint("Horizontal", 21))
sketch2.addConstraint(Sketcher.Constraint("Vertical", 22))
sketch2.addConstraint(Sketcher.Constraint("Vertical", 24))
sketch2.addConstraint(Sketcher.Constraint("Vertical", 26))
sketch2.addConstraint(Sketcher.Constraint("Horizontal", 27))
sketch2.addConstraint(Sketcher.Constraint("Vertical", 28))
sketch2.addConstraint(Sketcher.Constraint("Vertical", 30))
sketch2.addConstraint(Sketcher.Constraint("Horizontal", 31))
sketch2.addConstraint(Sketcher.Constraint("Horizontal", 32))
sketch2.addConstraint(Sketcher.Constraint("Horizontal", 34))
sketch2.addConstraint(Sketcher.Constraint("Vertical", 35))
sketch2.addConstraint(Sketcher.Constraint("Horizontal", 36))
sketch2.addConstraint(Sketcher.Constraint("Horizontal", 38))
sketch2.addConstraint(Sketcher.Constraint("Vertical", 39))
sketch2.addConstraint(Sketcher.Constraint("Horizontal", 40))
sketch2.addConstraint(Sketcher.Constraint("Vertical", 41))
sketch2.addConstraint(Sketcher.Constraint("Horizontal", 42))
sketch2.addConstraint(Sketcher.Constraint("Horizontal", 44))
sketch2.addConstraint(Sketcher.Constraint("Vertical", 45))
sketch2.addConstraint(Sketcher.Constraint("Horizontal", 46))
sketch2.addConstraint(Sketcher.Constraint("Vertical", 48))
sketch2.addConstraint(Sketcher.Constraint("Horizontal", 49))
sketch2.addConstraint(Sketcher.Constraint("Vertical", 50))
sketch2.addConstraint(Sketcher.Constraint("Horizontal", 51))
sketch2.addConstraint(Sketcher.Constraint("Horizontal", 52))
sketch2.addConstraint(Sketcher.Constraint("Vertical", 53))
sketch2.addConstraint(Sketcher.Constraint("Horizontal", 54))
sketch2.addConstraint(Sketcher.Constraint("Vertical", 55))
sketch2.addConstraint(Sketcher.Constraint("Coincident", 6, 3, 2, 3))
sketch2.addConstraint(Sketcher.Constraint("Coincident", 10, 3, 2, 3))
sketch2.addConstraint(Sketcher.Constraint("Coincident", 14, 3, 2, 3))
sketch2.addConstraint(Sketcher.Constraint("Coincident", 23, 3, 19, 3))
sketch2.addConstraint(Sketcher.Constraint("Coincident", 25, 3, 19, 3))
sketch2.addConstraint(Sketcher.Constraint("Coincident", 29, 3, 19, 3))
sketch2.addConstraint(Sketcher.Constraint("Coincident", 37, 3, 33, 3))
sketch2.addConstraint(Sketcher.Constraint("Coincident", 43, 3, 33, 3))
sketch2.addConstraint(Sketcher.Constraint("Coincident", 47, 3, 33, 3))
sketch2.addConstraint(Sketcher.Constraint("Equal", 2, 6))
sketch2.addConstraint(Sketcher.Constraint("Equal", 10, 14))
sketch2.addConstraint(Sketcher.Constraint("Equal", 6, 19))
sketch2.addConstraint(Sketcher.Constraint("Equal", 19, 23))
sketch2.addConstraint(Sketcher.Constraint("Equal", 14, 25))
sketch2.addConstraint(Sketcher.Constraint("Equal", 25, 29))
sketch2.addConstraint(Sketcher.Constraint("Equal", 23, 33))
sketch2.addConstraint(Sketcher.Constraint("Equal", 33, 37))
sketch2.addConstraint(Sketcher.Constraint("Equal", 29, 43))
sketch2.addConstraint(Sketcher.Constraint("Equal", 43, 47))
sketch2.addConstraint(Sketcher.Constraint("Symmetric", 2, 3, 33, 3, -1, 1))
sketch2.addConstraint(Sketcher.Constraint("Symmetric", 3, 2, 34, 2, -1, 1))
sketch2.addConstraint(Sketcher.Constraint("Symmetric", 7, 2, 38, 2, -1, 1))
sketch2.addConstraint(Sketcher.Constraint("Symmetric", 15, 2, 40, 2, -1, 1))
sketch2.addConstraint(Sketcher.Constraint("Symmetric", 11, 2, 44, 2, -1, 1))
sketch2.addConstraint(Sketcher.Constraint("Symmetric", 20, 2, 48, 2, -1, 1))
sketch2.addConstraint(Sketcher.Constraint("Symmetric", 16, 2, 50, 2, -1, 1))
sketch2.addConstraint(Sketcher.Constraint("Symmetric", 27, 2, 52, 2, -1, 1))
sketch2.addConstraint(Sketcher.Constraint("Symmetric", 30, 2, 53, 2, -1, 1))
sketch2.addConstraint(Sketcher.Constraint("Symmetric", 1, 2, 2, 2, -2))
sketch2.addConstraint(Sketcher.Constraint("Symmetric", 4, 2, 7, 2, -2))
sketch2.addConstraint(Sketcher.Constraint("Symmetric", 8, 2, 11, 2, -2))
sketch2.addConstraint(Sketcher.Constraint("Symmetric", 17, 2, 48, 2, -2))
sketch2.addConstraint(Sketcher.Constraint("Symmetric", 26, 2, 54, 2, -2))
sketch2.addConstraint(Sketcher.Constraint("Symmetric", 22, 2, 23, 2, -1))
sketch2.addConstraint(Sketcher.Constraint("Horizontal", 13, 2, 14, 1))
sketch2.addConstraint(Sketcher.Constraint("Horizontal", 19, 2, 22, 2))
sketch2.addConstraint(Sketcher.Constraint("Horizontal", 25, 1, 28, 2))
sketch2.addConstraint(Sketcher.Constraint("Horizontal", 24, 2, 29, 1))
sketch2.addConstraint(Sketcher.Constraint("Horizontal", 32, 2, 33, 2))
sketch2.addConstraint(Sketcher.Constraint("Horizontal", 36, 2, 37, 2))
sketch2.addConstraint(Sketcher.Constraint("Horizontal", 42, 2, 43, 1))
sketch2.addConstraint(Sketcher.Constraint("Horizontal", 40, 2, 45, 2))
sketch2.addConstraint(Sketcher.Constraint("Vertical", 2, 2, 5, 2))
sketch2.addConstraint(Sketcher.Constraint("Vertical", 10, 1, 13, 2))
sketch2.addConstraint(Sketcher.Constraint("Equal", 51, 0))
sketch2.addConstraint(Sketcher.Constraint("Equal", 54, 8))
sketch2.addConstraint(Sketcher.Constraint("Equal", 38, 16))
sketch2.addConstraint(Sketcher.Constraint("Equal", 46, 24))
sketch2.addConstraint(Sketcher.Constraint("Radius", 10, 2.0))
sketch2.addConstraint(Sketcher.Constraint("DistanceX", 27, 1, 27, 2, 3.0))
sketch2.addConstraint(Sketcher.Constraint("DistanceY", 53, 1, 53, 2, 10.0))
sketch2.addConstraint(Sketcher.Constraint("Radius", 2, 2.25))
sketch2.addConstraint(Sketcher.Constraint("DistanceX", 17, 1, 17, 2, 3.5))
sketch2.addConstraint(Sketcher.Constraint("DistanceY", 48, 2, 48, 1, 10.5))
sketch2.addConstraint(Sketcher.Constraint("DistanceY", -1, 1, 8, 2, 13.0))
sketch2.addConstraint(Sketcher.Constraint("DistanceX", 24, 2, -1, 1, 13.0))
pocket1 = body.newObject("PartDesign::Pocket", "Pocket")
pocket1.Profile = sketch2
pocket1.Length = 10
pocket1.Reversed = True

doc.recompute()
